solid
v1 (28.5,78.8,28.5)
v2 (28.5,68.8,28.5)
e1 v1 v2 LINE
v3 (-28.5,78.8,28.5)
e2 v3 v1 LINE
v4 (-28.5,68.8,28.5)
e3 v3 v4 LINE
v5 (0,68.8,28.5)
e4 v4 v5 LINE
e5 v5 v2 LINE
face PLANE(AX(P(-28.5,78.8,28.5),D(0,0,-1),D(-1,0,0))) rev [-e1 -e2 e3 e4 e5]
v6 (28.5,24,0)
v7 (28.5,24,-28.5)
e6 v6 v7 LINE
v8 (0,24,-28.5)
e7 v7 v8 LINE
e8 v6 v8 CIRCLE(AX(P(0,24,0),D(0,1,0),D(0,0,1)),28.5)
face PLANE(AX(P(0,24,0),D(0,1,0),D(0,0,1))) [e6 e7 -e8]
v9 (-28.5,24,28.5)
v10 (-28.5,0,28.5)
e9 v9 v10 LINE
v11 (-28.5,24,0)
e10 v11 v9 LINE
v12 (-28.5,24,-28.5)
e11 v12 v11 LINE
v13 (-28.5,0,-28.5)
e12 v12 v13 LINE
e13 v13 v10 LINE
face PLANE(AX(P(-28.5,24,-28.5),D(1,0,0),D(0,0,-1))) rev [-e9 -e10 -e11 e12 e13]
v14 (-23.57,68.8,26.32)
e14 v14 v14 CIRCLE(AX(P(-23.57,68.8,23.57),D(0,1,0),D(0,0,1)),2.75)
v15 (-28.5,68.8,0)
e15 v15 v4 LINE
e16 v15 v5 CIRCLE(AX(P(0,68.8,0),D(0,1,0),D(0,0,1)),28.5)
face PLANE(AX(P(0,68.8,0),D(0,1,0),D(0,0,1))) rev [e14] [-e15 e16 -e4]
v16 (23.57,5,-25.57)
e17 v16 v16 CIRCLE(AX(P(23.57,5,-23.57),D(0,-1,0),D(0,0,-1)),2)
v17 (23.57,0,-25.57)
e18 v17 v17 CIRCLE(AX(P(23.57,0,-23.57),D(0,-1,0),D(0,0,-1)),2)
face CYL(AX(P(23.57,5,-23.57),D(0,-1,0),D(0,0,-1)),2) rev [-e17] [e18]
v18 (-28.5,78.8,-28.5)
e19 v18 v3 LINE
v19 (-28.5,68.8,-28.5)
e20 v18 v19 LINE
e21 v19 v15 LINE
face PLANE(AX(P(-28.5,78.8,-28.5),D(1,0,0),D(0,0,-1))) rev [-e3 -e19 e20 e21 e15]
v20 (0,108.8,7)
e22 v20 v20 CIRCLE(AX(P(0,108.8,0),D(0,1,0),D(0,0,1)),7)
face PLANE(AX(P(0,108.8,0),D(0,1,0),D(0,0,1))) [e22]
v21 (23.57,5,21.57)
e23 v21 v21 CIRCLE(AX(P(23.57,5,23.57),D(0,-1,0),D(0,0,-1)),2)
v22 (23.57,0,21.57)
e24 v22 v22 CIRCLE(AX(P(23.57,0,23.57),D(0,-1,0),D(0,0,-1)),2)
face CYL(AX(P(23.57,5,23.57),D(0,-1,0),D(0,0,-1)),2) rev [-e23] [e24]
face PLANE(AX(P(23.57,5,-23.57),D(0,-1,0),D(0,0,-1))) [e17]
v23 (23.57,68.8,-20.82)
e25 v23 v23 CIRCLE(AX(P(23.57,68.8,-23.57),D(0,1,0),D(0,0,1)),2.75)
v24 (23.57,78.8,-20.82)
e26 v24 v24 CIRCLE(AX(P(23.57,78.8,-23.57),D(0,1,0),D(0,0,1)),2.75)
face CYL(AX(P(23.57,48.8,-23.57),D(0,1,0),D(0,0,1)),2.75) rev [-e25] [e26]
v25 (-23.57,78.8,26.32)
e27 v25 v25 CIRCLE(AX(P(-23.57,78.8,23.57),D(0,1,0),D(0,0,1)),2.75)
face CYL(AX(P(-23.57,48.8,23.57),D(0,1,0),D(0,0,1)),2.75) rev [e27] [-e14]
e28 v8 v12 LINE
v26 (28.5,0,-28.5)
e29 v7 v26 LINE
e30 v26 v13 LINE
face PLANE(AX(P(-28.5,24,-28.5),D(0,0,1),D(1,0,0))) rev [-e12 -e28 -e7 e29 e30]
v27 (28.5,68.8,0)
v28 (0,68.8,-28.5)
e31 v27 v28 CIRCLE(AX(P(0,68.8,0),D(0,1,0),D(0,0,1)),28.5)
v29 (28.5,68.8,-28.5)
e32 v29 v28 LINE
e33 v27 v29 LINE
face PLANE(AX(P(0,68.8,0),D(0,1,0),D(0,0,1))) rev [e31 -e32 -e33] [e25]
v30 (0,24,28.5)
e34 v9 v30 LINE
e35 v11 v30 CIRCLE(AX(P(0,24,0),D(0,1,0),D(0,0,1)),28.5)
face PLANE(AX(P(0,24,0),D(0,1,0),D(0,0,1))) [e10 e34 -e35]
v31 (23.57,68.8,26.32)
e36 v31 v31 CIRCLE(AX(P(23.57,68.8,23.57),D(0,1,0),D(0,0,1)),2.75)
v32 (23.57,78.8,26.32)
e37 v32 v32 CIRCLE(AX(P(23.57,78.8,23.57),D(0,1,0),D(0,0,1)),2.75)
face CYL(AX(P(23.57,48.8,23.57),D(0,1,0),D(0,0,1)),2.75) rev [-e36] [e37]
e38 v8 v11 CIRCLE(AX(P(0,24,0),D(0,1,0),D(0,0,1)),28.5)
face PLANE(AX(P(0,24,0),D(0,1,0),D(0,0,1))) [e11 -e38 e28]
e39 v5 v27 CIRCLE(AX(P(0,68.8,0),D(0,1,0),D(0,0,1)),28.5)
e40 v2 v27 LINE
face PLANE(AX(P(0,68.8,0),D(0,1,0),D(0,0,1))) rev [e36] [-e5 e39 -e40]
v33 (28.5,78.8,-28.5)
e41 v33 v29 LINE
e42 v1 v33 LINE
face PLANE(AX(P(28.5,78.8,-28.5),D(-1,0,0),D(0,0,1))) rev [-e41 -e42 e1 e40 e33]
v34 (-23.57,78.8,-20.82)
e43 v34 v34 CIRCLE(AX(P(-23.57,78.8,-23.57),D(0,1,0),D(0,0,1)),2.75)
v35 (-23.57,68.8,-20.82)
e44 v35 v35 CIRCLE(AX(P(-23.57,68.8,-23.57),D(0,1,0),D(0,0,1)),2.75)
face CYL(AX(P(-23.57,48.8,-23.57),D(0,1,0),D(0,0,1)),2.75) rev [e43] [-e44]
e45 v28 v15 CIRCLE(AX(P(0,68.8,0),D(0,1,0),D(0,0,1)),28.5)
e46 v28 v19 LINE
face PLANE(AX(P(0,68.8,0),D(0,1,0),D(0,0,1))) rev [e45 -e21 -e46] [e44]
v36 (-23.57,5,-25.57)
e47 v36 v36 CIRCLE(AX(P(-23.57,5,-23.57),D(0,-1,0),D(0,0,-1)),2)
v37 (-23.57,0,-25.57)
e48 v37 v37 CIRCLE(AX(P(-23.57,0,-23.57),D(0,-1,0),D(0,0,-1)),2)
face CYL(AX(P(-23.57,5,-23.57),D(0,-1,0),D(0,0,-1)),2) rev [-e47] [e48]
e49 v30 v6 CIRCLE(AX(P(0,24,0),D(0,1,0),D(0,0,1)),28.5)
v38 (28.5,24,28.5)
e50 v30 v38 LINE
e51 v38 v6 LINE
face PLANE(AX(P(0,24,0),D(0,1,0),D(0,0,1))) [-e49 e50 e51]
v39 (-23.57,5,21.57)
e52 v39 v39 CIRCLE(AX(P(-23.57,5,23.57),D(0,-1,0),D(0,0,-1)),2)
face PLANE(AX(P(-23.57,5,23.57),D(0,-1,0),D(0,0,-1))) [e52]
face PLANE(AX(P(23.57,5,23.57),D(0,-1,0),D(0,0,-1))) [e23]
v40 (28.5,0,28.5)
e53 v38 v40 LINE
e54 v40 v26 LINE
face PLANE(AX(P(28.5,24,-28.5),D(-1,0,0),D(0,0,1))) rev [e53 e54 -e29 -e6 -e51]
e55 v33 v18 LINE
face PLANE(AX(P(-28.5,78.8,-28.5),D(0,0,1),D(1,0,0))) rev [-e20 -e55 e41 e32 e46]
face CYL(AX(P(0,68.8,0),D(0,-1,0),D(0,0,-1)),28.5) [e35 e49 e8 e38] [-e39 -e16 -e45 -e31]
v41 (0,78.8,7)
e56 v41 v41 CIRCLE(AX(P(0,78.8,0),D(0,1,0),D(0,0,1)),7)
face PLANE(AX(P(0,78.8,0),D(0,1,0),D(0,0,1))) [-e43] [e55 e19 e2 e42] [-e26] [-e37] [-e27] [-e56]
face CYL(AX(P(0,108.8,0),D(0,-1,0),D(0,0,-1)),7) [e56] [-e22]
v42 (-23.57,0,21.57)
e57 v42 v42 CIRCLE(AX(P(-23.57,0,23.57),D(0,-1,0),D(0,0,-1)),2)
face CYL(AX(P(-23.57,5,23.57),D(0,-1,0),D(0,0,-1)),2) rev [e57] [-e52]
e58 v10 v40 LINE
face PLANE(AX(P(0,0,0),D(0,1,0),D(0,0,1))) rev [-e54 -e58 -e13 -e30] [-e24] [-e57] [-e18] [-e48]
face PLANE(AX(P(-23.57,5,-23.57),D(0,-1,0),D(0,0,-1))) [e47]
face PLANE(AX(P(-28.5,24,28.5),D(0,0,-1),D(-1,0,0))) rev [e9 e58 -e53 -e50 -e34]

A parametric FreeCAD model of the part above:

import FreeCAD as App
import Part
import Sketcher

V = App.Vector
Q = App.Units.Quantity

doc = App.newDocument("Part")
params = doc.addObject("Spreadsheet::Sheet", "Params")
for row, (alias, value) in enumerate([
    ("sketch1_width", "57 mm"),
    ("pad1_length", "24 mm"),
    ("sketch2_diameter", "57 mm"),
    ("pad2_length", "44.8 mm"),
    ("sketch3_width", "57 mm"),
    ("pad3_length", "10 mm"),
    ("sketch4_diameter", "14 mm"),
    ("pad4_length", "30 mm"),
    ("sketch5_diameter", "5.5 mm"),
    ("pocket1_length", "30 mm"),
    ("sketch6_diameter", "4 mm"),
    ("pocket2_length", "5 mm"),
], start=1):
    params.set(f"A{row}", alias)
    params.set(f"B{row}", "=" + value)
    params.setAlias(f"B{row}", alias)

body = doc.addObject("PartDesign::Body", "Body")

sketch1 = body.newObject("Sketcher::SketchObject", "Sketch")
sketch1.AttachmentSupport = (doc.getObject("XZ_Plane"), [""])
sketch1.MapMode = "FlatFace"
sketch1.addGeometry([
    Part.LineSegment(V(-28.5, -28.5, 0), V(-28.5, 28.5, 0)),
    Part.LineSegment(V(-28.5, 28.5, 0), V(28.5, 28.5, 0)),
    Part.LineSegment(V(28.5, 28.5, 0), V(28.5, -28.5, 0)),
    Part.LineSegment(V(28.5, -28.5, 0), V(-28.5, -28.5, 0)),
], False)
sketch1.addConstraint([
    Sketcher.Constraint("Coincident", 0, 2, 1, 1),
    Sketcher.Constraint("Coincident", 1, 2, 2, 1),
    Sketcher.Constraint("Coincident", 2, 2, 3, 1),
    Sketcher.Constraint("Coincident", 3, 2, 0, 1),
    Sketcher.Constraint("Vertical", 0),
    Sketcher.Constraint("Horizontal", 1),
    Sketcher.Constraint("Vertical", 2),
    Sketcher.Constraint("Horizontal", 3),
    Sketcher.Constraint("Symmetric", 0, 2, 2, 2, -1, 1),
    Sketcher.Constraint("Equal", 3, 0),
    Sketcher.Constraint("DistanceX", 1, 1, 1, 2, Q("57 mm")),
])
sketch1.setExpression("Constraints[10]", "Params.sketch1_width")
pad1 = body.newObject("PartDesign::Pad", "Pad")
pad1.Profile = sketch1
pad1.setExpression("Length", "Params.pad1_length")
pad1.Reversed = True

sketch2 = body.newObject("Sketcher::SketchObject", "Sketch001")
sketch2.AttachmentSupport = (doc.getObject("XZ_Plane"), [""])
sketch2.MapMode = "FlatFace"
sketch2.AttachmentOffset = App.Placement(V(0, 0, -24), App.Rotation())
sketch2.addGeometry(Part.Circle(V(0, 0, 0), V(0, 0, 1), 28.5), False)
sketch2.addConstraint([
    Sketcher.Constraint("Coincident", 0, 3, -1, 1),
    Sketcher.Constraint("Diameter", 0, Q("57 mm")),
])
sketch2.setExpression("Constraints[1]", "Params.sketch2_diameter")
pad2 = body.newObject("PartDesign::Pad", "Pad001")
pad2.Profile = sketch2
pad2.setExpression("Length", "Params.pad2_length")
pad2.Reversed = True

sketch3 = body.newObject("Sketcher::SketchObject", "Sketch002")
sketch3.AttachmentSupport = (doc.getObject("XZ_Plane"), [""])
sketch3.MapMode = "FlatFace"
sketch3.AttachmentOffset = App.Placement(V(0, 0, -68.8), App.Rotation())
sketch3.addGeometry([
    Part.LineSegment(V(-28.5, -28.5, 0), V(-28.5, 28.5, 0)),
    Part.LineSegment(V(-28.5, 28.5, 0), V(28.5, 28.5, 0)),
    Part.LineSegment(V(28.5, 28.5, 0), V(28.5, -28.5, 0)),
    Part.LineSegment(V(28.5, -28.5, 0), V(-28.5, -28.5, 0)),
], False)
sketch3.addConstraint([
    Sketcher.Constraint("Coincident", 0, 2, 1, 1),
    Sketcher.Constraint("Coincident", 1, 2, 2, 1),
    Sketcher.Constraint("Coincident", 2, 2, 3, 1),
    Sketcher.Constraint("Coincident", 3, 2, 0, 1),
    Sketcher.Constraint("Vertical", 0),
    Sketcher.Constraint("Horizontal", 1),
    Sketcher.Constraint("Vertical", 2),
    Sketcher.Constraint("Horizontal", 3),
    Sketcher.Constraint("Symmetric", 0, 2, 2, 2, -1, 1),
    Sketcher.Constraint("Equal", 3, 0),
    Sketcher.Constraint("DistanceX", 1, 1, 1, 2, Q("57 mm")),
])
sketch3.setExpression("Constraints[10]", "Params.sketch3_width")
pad3 = body.newObject("PartDesign::Pad", "Pad002")
pad3.Profile = sketch3
pad3.setExpression("Length", "Params.pad3_length")
pad3.Reversed = True

sketch4 = body.newObject("Sketcher::SketchObject", "Sketch003")
sketch4.AttachmentSupport = (doc.getObject("XZ_Plane"), [""])
sketch4.MapMode = "FlatFace"
sketch4.AttachmentOffset = App.Placement(V(0, 0, -78.8), App.Rotation())
sketch4.addGeometry(Part.Circle(V(0, 0, 0), V(0, 0, 1), 7), False)
sketch4.addConstraint([
    Sketcher.Constraint("Coincident", 0, 3, -1, 1),
    Sketcher.Constraint("Diameter", 0, Q("14 mm")),
])
sketch4.setExpression("Constraints[1]", "Params.sketch4_diameter")
pad4 = body.newObject("PartDesign::Pad", "Pad003")
pad4.Profile = sketch4
pad4.setExpression("Length", "Params.pad4_length")
pad4.Reversed = True

sketch5 = body.newObject("Sketcher::SketchObject", "Sketch004")
sketch5.AttachmentSupport = (doc.getObject("XZ_Plane"), [""])
sketch5.MapMode = "FlatFace"
sketch5.AttachmentOffset = App.Placement(V(0, 0, -78.8), App.Rotation())
sketch5.addGeometry([
    Part.Circle(V(23.57, 23.57, 0), V(0, 0, 1), 2.75),
    Part.Circle(V(-23.57, 23.57, 0), V(0, 0, 1), 2.75),
    Part.Circle(V(-23.57, -23.57, 0), V(0, 0, 1), 2.75),
    Part.Circle(V(23.57, -23.57, 0), V(0, 0, 1), 2.75),
], False)
sketch5.addConstraint([
    Sketcher.Constraint("Equal", 0, 1),
    Sketcher.Constraint("Equal", 1, 2),
    Sketcher.Constraint("Equal", 2, 3),
    Sketcher.Constraint("Symmetric", 0, 3, 2, 3, -1, 1),
    Sketcher.Constraint("Symmetric", 1, 3, 3, 3, -1, 1),
    Sketcher.Constraint("Symmetric", 0, 3, 1, 3, -2),
    Sketcher.Constraint("Diameter", 0, Q("5.5 mm")),
    Sketcher.Constraint("DistanceX", -1, 1, 0, 3, Q("23.57 mm")),
    Sketcher.Constraint("DistanceY", -1, 1, 0, 3, Q("23.57 mm")),
])
sketch5.setExpression("Constraints[6]", "Params.sketch5_diameter")
pocket1 = body.newObject("PartDesign::Pocket", "Pocket")
pocket1.Profile = sketch5
pocket1.setExpression("Length", "Params.pocket1_length")
pocket1.Reversed = True

sketch6 = body.newObject("Sketcher::SketchObject", "Sketch005")
sketch6.AttachmentSupport = (doc.getObject("XZ_Plane"), [""])
sketch6.MapMode = "FlatFace"
sketch6.addGeometry([
    Part.Circle(V(-23.57, -23.57, 0), V(0, 0, 1), 2),
    Part.Circle(V(23.57, -23.57, 0), V(0, 0, 1), 2),
    Part.Circle(V(23.57, 23.57, 0), V(0, 0, 1), 2),
    Part.Circle(V(-23.57, 23.57, 0), V(0, 0, 1), 2),
], False)
sketch6.addConstraint([
    Sketcher.Constraint("Equal", 0, 1),
    Sketcher.Constraint("Equal", 1, 2),
    Sketcher.Constraint("Equal", 2, 3),
    Sketcher.Constraint("Symmetric", 0, 3, 2, 3, -1, 1),
    Sketcher.Constraint("Symmetric", 1, 3, 3, 3, -1, 1),
    Sketcher.Constraint("Symmetric", 0, 3, 1, 3, -2),
    Sketcher.Constraint("Diameter", 0, Q("4 mm")),
    Sketcher.Constraint("DistanceX", 0, 3, -1, 1, Q("23.57 mm")),
    Sketcher.Constraint("DistanceY", 0, 3, -1, 1, Q("23.57 mm")),
])
sketch6.setExpression("Constraints[6]", "Params.sketch6_diameter")
pocket2 = body.newObject("PartDesign::Pocket", "Pocket001")
pocket2.Profile = sketch6
pocket2.setExpression("Length", "Params.pocket2_length")

doc.recompute()
